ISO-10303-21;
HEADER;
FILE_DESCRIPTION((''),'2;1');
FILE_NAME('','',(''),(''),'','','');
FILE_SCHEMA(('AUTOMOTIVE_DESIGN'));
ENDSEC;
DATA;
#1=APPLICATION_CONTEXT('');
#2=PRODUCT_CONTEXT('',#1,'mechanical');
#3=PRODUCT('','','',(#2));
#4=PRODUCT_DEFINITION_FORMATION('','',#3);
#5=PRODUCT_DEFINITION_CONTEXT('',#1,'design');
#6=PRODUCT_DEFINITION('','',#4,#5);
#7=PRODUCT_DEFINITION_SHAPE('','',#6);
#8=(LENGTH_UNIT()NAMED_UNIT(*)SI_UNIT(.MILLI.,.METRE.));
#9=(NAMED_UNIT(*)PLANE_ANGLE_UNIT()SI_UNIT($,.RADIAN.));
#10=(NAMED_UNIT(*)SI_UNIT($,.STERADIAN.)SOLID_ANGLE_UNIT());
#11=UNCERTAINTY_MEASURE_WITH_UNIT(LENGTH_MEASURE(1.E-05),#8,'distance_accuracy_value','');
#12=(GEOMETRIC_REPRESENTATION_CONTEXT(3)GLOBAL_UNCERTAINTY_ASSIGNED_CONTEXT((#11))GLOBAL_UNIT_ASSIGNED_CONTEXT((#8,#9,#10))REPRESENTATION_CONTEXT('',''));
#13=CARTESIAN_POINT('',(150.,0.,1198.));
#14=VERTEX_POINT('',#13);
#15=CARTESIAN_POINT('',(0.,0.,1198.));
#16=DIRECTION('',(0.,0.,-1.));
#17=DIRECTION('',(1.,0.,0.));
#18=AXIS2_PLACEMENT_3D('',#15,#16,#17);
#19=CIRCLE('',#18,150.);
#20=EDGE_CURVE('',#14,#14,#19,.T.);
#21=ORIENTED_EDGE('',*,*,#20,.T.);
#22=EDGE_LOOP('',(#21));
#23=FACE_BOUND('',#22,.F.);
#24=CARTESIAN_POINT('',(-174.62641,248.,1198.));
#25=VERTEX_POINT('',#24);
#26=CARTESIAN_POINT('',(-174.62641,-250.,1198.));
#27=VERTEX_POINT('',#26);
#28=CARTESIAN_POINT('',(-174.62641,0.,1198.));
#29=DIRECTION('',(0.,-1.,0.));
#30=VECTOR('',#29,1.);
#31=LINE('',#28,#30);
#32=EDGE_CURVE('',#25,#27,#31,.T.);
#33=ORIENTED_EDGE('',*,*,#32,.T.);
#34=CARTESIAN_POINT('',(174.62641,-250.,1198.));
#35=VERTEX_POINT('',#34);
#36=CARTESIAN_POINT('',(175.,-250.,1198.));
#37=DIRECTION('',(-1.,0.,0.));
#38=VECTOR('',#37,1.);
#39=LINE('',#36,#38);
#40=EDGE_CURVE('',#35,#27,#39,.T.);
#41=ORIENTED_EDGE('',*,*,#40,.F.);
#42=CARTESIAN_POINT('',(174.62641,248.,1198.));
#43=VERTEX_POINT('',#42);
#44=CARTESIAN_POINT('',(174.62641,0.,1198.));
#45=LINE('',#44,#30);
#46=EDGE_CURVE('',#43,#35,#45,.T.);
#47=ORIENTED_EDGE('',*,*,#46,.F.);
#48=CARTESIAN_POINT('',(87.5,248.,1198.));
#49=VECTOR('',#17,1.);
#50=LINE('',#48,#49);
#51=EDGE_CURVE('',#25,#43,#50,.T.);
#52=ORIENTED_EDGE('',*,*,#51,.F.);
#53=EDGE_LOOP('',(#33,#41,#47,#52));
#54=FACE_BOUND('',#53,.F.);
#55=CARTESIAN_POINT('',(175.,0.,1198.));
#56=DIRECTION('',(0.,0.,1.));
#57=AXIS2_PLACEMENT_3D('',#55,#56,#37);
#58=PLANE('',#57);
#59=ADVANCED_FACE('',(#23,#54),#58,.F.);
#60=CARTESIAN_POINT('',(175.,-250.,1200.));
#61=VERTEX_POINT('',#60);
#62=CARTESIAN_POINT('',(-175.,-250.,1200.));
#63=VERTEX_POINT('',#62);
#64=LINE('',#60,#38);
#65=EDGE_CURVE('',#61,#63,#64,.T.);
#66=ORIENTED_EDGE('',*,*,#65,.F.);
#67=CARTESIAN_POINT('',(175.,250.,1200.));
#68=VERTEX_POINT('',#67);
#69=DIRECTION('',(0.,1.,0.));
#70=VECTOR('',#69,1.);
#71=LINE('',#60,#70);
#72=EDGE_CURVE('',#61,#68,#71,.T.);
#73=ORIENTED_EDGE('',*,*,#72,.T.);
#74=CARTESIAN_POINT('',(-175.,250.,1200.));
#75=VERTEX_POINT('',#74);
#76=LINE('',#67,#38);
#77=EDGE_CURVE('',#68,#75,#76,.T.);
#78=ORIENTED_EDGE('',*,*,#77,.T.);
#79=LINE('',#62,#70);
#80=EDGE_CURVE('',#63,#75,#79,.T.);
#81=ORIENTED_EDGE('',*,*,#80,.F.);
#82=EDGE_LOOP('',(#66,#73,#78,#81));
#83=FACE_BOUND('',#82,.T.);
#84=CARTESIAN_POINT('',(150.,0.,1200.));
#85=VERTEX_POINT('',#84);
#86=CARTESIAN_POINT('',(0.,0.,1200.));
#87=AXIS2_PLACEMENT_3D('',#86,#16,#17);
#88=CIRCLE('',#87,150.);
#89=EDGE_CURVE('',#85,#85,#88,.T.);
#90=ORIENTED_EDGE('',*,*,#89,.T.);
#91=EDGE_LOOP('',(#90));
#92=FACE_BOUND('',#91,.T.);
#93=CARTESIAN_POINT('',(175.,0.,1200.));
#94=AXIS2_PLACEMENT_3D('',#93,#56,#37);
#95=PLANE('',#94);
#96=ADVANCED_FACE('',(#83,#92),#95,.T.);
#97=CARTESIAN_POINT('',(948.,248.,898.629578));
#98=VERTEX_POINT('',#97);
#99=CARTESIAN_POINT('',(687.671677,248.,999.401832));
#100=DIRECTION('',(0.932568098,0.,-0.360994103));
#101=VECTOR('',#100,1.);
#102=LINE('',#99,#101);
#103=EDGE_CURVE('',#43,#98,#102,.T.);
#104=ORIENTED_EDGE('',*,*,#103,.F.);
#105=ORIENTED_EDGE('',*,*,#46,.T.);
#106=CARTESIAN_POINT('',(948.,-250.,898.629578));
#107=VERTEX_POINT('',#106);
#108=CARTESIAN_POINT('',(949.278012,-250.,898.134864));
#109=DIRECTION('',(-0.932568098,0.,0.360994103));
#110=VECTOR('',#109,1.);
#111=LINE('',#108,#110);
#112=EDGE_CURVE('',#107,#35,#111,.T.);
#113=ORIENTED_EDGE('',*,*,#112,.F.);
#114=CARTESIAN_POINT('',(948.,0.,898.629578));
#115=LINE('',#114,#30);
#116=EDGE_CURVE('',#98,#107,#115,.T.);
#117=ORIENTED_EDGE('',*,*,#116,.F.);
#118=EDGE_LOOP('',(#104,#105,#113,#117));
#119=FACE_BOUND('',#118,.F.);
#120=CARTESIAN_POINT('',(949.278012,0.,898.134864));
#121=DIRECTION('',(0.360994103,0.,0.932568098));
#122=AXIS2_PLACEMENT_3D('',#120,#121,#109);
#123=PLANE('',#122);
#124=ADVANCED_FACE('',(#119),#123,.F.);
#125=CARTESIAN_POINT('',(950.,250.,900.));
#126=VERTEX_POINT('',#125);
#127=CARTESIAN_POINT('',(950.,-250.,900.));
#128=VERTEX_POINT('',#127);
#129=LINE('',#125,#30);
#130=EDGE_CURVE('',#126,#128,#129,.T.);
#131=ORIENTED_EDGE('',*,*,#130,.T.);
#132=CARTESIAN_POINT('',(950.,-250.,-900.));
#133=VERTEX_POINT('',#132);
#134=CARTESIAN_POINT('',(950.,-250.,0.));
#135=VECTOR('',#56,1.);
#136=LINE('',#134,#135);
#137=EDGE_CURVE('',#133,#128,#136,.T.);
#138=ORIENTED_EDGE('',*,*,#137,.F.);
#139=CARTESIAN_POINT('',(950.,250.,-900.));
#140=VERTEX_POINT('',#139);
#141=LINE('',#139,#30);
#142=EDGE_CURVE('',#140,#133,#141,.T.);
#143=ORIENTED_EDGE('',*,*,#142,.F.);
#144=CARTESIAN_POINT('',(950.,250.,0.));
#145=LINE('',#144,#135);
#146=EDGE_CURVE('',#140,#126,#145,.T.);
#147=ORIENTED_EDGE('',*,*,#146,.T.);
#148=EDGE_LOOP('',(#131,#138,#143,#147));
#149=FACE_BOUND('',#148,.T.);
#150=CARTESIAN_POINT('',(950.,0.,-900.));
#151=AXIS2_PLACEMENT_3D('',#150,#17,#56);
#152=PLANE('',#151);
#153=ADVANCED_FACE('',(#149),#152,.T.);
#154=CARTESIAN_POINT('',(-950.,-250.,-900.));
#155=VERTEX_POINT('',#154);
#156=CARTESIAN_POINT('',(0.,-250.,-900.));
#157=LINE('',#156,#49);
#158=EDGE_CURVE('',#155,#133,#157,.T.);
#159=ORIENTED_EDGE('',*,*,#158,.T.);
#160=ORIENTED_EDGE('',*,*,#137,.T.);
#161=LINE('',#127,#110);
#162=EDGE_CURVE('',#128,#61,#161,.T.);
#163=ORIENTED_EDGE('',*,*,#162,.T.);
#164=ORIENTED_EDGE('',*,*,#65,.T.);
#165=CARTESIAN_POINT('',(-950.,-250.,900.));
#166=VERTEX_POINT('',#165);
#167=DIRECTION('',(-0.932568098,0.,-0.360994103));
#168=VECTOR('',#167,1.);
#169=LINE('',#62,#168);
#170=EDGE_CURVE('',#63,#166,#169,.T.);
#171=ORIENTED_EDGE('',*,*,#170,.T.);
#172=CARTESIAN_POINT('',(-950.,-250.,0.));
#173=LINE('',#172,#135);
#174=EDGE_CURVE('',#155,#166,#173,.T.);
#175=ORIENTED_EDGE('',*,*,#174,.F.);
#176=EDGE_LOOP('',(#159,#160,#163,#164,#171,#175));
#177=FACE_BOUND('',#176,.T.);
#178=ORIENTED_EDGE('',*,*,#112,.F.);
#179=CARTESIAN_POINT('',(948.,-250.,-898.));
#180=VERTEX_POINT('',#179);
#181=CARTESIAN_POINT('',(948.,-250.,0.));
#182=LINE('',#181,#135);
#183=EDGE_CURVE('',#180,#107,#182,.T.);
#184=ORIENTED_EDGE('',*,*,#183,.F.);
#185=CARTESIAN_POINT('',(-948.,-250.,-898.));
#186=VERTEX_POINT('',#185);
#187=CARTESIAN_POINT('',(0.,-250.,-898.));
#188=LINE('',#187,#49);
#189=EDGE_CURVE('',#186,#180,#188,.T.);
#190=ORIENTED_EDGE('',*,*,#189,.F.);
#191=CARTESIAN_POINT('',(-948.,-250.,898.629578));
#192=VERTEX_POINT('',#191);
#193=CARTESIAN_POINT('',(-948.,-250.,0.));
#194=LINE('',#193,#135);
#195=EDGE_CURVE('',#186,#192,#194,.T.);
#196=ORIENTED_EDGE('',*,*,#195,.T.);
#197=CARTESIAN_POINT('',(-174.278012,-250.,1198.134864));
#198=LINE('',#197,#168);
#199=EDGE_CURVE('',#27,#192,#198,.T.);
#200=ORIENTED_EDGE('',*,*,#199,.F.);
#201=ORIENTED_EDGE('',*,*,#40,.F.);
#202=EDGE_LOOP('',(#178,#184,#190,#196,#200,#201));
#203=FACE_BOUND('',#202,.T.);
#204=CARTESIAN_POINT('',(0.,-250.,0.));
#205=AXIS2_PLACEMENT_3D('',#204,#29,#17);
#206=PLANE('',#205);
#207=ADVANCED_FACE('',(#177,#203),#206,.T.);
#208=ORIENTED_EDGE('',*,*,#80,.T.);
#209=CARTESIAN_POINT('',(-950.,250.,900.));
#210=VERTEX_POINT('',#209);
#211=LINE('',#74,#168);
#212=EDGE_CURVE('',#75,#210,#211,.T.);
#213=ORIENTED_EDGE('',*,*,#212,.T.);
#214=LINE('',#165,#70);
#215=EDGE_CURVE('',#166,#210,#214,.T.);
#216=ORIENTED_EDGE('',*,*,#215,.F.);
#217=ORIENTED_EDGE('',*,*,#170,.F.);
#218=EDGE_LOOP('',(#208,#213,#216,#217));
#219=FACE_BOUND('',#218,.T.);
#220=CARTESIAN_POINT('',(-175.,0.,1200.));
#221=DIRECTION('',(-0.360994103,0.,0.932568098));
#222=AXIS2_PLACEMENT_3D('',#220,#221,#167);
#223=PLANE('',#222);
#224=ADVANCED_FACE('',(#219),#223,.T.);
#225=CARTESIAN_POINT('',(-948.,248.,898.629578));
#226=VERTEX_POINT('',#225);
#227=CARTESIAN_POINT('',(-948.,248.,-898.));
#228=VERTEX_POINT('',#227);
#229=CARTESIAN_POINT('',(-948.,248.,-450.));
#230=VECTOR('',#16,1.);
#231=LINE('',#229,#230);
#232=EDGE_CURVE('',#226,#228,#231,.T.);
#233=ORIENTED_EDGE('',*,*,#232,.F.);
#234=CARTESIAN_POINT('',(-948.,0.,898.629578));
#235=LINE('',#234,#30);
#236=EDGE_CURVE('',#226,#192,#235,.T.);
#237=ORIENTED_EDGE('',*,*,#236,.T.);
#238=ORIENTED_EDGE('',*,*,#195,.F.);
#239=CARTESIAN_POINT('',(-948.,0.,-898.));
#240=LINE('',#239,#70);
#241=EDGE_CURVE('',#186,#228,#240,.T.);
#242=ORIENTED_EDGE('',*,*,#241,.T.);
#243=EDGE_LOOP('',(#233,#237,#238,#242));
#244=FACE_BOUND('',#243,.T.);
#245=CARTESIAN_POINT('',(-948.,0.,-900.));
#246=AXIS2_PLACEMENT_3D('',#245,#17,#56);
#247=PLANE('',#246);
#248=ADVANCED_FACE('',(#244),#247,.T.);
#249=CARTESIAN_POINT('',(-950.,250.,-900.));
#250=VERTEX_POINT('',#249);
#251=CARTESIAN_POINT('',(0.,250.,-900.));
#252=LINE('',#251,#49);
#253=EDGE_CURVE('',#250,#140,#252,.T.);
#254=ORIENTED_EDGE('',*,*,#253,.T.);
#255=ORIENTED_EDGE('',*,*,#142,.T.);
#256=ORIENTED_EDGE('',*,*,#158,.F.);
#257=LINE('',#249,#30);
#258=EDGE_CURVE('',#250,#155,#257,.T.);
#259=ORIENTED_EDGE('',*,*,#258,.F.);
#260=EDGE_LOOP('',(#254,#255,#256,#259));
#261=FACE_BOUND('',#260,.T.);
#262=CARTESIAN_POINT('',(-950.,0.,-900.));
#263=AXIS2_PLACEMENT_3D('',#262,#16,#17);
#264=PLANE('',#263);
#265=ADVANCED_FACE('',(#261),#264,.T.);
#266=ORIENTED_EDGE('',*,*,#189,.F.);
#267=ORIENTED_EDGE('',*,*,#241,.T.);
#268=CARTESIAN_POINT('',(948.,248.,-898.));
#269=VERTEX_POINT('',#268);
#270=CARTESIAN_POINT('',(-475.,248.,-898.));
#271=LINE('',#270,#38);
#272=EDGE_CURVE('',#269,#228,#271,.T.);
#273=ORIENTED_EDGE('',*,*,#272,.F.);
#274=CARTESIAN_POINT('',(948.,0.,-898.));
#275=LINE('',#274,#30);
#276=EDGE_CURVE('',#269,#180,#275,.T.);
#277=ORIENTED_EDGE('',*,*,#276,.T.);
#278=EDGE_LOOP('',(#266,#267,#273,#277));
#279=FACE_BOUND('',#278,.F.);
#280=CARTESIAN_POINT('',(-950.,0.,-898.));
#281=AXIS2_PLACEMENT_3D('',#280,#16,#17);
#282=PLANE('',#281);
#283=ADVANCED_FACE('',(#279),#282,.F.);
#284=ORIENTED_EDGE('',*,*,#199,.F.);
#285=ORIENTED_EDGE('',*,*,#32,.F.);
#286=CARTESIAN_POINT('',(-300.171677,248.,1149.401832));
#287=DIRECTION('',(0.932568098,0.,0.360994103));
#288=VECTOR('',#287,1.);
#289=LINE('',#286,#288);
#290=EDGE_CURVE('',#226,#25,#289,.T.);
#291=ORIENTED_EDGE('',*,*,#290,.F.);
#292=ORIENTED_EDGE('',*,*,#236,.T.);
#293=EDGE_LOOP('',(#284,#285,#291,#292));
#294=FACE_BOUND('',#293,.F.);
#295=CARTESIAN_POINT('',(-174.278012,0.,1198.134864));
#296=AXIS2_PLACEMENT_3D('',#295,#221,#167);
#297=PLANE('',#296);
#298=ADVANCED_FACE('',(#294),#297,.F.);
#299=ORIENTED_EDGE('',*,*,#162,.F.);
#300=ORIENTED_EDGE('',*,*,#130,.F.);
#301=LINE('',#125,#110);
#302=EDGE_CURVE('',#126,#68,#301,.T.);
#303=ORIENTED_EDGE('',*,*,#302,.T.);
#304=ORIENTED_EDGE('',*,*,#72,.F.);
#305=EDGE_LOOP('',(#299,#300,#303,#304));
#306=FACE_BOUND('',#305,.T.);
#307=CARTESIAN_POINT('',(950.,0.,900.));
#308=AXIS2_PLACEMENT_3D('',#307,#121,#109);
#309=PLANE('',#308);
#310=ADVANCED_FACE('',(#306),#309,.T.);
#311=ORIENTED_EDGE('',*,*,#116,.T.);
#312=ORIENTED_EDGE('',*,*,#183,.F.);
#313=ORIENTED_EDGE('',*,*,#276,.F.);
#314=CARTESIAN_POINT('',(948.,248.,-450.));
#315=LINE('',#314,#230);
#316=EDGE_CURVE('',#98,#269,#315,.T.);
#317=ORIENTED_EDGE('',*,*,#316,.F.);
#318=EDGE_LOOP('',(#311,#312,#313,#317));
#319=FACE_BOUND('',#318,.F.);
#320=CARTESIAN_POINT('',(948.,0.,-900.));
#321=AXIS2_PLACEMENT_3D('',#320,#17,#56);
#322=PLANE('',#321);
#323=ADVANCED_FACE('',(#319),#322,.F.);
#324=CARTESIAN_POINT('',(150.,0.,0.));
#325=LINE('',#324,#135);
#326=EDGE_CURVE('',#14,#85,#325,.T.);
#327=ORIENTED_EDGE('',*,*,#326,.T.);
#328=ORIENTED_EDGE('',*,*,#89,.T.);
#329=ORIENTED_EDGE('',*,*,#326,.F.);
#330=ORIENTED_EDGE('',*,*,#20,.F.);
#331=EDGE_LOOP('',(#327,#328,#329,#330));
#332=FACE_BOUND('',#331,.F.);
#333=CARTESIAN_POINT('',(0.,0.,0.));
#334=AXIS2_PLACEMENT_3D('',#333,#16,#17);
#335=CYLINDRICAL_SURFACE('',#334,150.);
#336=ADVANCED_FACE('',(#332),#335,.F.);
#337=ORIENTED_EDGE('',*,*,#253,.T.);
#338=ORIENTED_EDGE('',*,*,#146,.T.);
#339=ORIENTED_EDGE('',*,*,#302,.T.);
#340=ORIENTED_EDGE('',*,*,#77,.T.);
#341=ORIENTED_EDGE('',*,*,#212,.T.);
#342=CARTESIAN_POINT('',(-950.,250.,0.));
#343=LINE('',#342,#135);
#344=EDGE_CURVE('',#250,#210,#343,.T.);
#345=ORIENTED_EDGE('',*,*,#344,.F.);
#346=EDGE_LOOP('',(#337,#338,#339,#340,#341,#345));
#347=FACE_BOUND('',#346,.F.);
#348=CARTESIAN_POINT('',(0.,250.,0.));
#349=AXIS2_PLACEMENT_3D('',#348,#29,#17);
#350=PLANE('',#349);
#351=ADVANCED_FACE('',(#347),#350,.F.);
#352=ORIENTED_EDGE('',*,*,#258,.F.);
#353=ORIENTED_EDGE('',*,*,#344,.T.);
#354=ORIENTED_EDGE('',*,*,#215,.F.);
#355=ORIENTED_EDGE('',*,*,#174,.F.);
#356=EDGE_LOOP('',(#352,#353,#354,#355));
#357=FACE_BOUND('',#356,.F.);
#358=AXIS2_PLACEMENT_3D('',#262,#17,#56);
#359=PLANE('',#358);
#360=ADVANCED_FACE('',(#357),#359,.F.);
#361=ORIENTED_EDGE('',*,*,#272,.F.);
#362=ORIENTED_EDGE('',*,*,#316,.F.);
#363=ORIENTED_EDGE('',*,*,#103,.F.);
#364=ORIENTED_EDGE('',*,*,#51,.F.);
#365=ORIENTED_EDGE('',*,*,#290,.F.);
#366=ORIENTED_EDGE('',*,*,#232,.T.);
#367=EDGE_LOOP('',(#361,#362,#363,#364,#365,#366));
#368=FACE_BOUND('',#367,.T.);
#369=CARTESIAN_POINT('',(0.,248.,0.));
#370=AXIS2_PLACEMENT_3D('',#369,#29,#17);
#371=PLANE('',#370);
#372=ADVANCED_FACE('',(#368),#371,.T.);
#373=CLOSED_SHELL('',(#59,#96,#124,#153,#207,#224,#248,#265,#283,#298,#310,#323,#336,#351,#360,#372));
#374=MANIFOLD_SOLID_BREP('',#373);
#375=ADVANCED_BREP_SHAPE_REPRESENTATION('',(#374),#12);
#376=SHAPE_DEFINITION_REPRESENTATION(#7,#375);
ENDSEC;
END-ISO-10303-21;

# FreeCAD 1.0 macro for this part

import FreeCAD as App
import Part
import Sketcher

V = App.Vector
Q = App.Units.Quantity


def faces_at(feature, points):
    """Names of the faces that lie closest to the given points."""
    faces = feature.Shape.Faces
    near = lambda p: min(range(len(faces)), key=lambda i: faces[i].distToShape(Part.Vertex(*p))[0])
    return sorted({f"Face{near(p) + 1}" for p in points})


def add_polygon(sketch, points):
    """Adds a closed chain of lines whose ends are joined by coincident constraints."""
    first, n = sketch.GeometryCount, len(points)
    for a, b in zip(points, points[1:] + points[:1]):
        sketch.addGeometry(Part.LineSegment(App.Vector(*a, 0), App.Vector(*b, 0)), False)
    for i in range(n):
        sketch.addConstraint(Sketcher.Constraint("Coincident", first + i, 2, first + (i + 1) % n, 1))

doc = App.newDocument("Part")
body = doc.addObject("PartDesign::Body", "Body")

# Sketch on XZ plane
sketch1 = body.newObject("Sketcher::SketchObject", "Sketch")
sketch1.AttachmentSupport = (doc.getObject("XZ_Plane"), [""])
sketch1.MapMode = "FlatFace"
add_polygon(sketch1, [(-950, 900), (-950, -900), (950, -900), (950, 900), (175, 1200), (-175, 1200)])  # lines 0-5
sketch1.addConstraint([
    Sketcher.Constraint("Vertical", 0),
    Sketcher.Constraint("Horizontal", 1),
    Sketcher.Constraint("Vertical", 2),
    Sketcher.Constraint("Horizontal", 4),
    Sketcher.Constraint("Symmetric", 0, 2, 2, 2, -1, 1),
    Sketcher.Constraint("Horizontal", 2, 2, 5, 2),
    Sketcher.Constraint("Equal", 3, 5),
    Sketcher.Constraint("DistanceX", 1, 1, 1, 2, Q("1900 mm")),
    Sketcher.Constraint("DistanceX", 4, 2, 4, 1, Q("350 mm")),
    Sketcher.Constraint("DistanceY", 0, 2, 0, 1, Q("1800 mm")),
    Sketcher.Constraint("DistanceY", -1, 1, 3, 2, Q("1200 mm")),
])
pad1 = body.newObject("PartDesign::Pad", "Pad")
pad1.Profile = sketch1
pad1.Length = 500
pad1.Midplane = True
doc.recompute()

thickness = body.newObject("PartDesign::Thickness", "Thickness")
thickness.Base = (pad1, faces_at(pad1, [(0, -250, 150)]))
thickness.Value = 2
thickness.Reversed = True
thickness.Join = "Arc"

# Sketch on XY plane
sketch2 = body.newObject("Sketcher::SketchObject", "Sketch001")
sketch2.AttachmentSupport = (doc.getObject("XY_Plane"), [""])
sketch2.MapMode = "FlatFace"
sketch2.addGeometry(Part.Circle(V(0, 0, 0), V(0, 0, 1), 150), False)
sketch2.addConstraint([
    Sketcher.Constraint("Coincident", 0, 3, -1, 1),
    Sketcher.Constraint("Diameter", 0, Q("300 mm")),
])
pocket1 = body.newObject("PartDesign::Pocket", "Pocket")
pocket1.Profile = sketch2
pocket1.Type = "ThroughAll"
pocket1.Reversed = True

doc.recompute()
